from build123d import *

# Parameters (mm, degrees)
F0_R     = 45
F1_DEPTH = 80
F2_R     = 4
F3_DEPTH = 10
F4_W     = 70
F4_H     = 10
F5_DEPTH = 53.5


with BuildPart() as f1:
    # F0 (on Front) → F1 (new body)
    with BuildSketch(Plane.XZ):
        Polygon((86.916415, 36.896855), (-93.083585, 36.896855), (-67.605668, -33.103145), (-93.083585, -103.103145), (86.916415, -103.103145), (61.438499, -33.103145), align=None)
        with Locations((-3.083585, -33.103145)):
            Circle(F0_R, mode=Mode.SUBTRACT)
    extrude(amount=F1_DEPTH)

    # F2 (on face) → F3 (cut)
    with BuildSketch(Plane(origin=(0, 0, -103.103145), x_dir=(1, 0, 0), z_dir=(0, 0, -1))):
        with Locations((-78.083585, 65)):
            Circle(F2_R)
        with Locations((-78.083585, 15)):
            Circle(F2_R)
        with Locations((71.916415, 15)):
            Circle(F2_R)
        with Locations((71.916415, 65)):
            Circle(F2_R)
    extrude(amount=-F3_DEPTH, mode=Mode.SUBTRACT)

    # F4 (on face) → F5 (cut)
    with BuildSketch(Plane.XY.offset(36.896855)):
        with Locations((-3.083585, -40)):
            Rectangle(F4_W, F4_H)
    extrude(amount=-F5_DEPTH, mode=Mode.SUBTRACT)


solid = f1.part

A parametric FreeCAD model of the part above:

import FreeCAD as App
import Part
import Sketcher
from FreeCAD import Vector
Q = App.Units.Quantity


def add_polygon(sketch, points):
    """Adds a closed chain of lines whose ends are joined by coincident constraints."""
    first, n = sketch.GeometryCount, len(points)
    for a, b in zip(points, points[1:] + points[:1]):
        sketch.addGeometry(Part.LineSegment(App.Vector(*a, 0), App.Vector(*b, 0)), False)
    for i in range(n):
        sketch.addConstraint(Sketcher.Constraint("Coincident", first + i, 2, first + (i + 1) % n, 1))

doc = App.newDocument("Part")
body = doc.addObject("PartDesign::Body", "Body")

# Sketch on XZ plane
sketch1 = body.newObject("Sketcher::SketchObject", "Sketch")
sketch1.AttachmentSupport = (doc.getObject("XZ_Plane"), [""])
sketch1.MapMode = "FlatFace"
add_polygon(sketch1, [(86.916415, 36.896855), (-93.083585, 36.896855), (-67.605668, -33.103145), (-93.083585, -103.103145), (86.916415, -103.103145), (61.438499, -33.103145)])  # lines 0-5
sketch1.addGeometry(Part.Circle(Vector(-3.083585, -33.103145, 0), Vector(0, 0, 1), 45), False)  # 6
sketch1.addConstraint([
    Sketcher.Constraint("Horizontal", 0),
    Sketcher.Constraint("Horizontal", 3),
    Sketcher.Constraint("Parallel", 1, 4),
    Sketcher.Constraint("Parallel", 2, 5),
    Sketcher.Constraint("Horizontal", 6, 3, 1, 2),
    Sketcher.Constraint("Horizontal", 1, 2, 4, 2),
    Sketcher.Constraint("Vertical", 0, 2, 2, 2),
    Sketcher.Constraint("Vertical", 3, 2, 5, 2),
    Sketcher.Constraint("Diameter", 6, 90.0),
    Sketcher.Constraint("DistanceX", 0, 2, 0, 1, 180.0),
    Sketcher.Constraint("Angle", 1, Q("-70 deg")),
    Sketcher.Constraint("DistanceX", 0, 2, 6, 3, 90.0),
    Sketcher.Constraint("DistanceY", 6, 3, 0, 2, 70.0),
    Sketcher.Constraint("DistanceX", -1, 1, 4, 2, 61.438499),
    Sketcher.Constraint("DistanceY", 6, 3, -1, 1, 33.103145),
])
pad1 = body.newObject("PartDesign::Pad", "Pad")
pad1.Profile = sketch1
pad1.Length = 80

# Sketch on XY plane
sketch2 = body.newObject("Sketcher::SketchObject", "Sketch001")
sketch2.AttachmentSupport = (doc.getObject("XY_Plane"), [""])
sketch2.MapMode = "FlatFace"
sketch2.AttachmentOffset = App.Placement(Vector(0, 0, -103.103145), App.Rotation())
sketch2.addGeometry([
    Part.Circle(Vector(-78.083585, -65, 0), Vector(0, 0, 1), 4),
    Part.Circle(Vector(-78.083585, -15, 0), Vector(0, 0, 1), 4),
    Part.Circle(Vector(71.916415, -15, 0), Vector(0, 0, 1), 4),
    Part.Circle(Vector(71.916415, -65, 0), Vector(0, 0, 1), 4),
], False)
sketch2.addConstraint([
    Sketcher.Constraint("Equal", 0, 1),
    Sketcher.Constraint("Equal", 1, 2),
    Sketcher.Constraint("Equal", 2, 3),
    Sketcher.Constraint("Horizontal", 1, 3, 2, 3),
    Sketcher.Constraint("Horizontal", 0, 3, 3, 3),
    Sketcher.Constraint("Vertical", 0, 3, 1, 3),
    Sketcher.Constraint("Vertical", 2, 3, 3, 3),
    Sketcher.Constraint("Diameter", 0, 8.0),
    Sketcher.Constraint("DistanceY", 0, 3, -1, 1, 65.0),
    Sketcher.Constraint("DistanceY", 1, 3, -1, 1, 15.0),
    Sketcher.Constraint("DistanceX", 1, 3, 2, 3, 150.0),
    Sketcher.Constraint("DistanceX", 0, 3, -1, 1, 78.083585),
])
pocket1 = body.newObject("PartDesign::Pocket", "Pocket")
pocket1.Profile = sketch2
pocket1.Length = 10
pocket1.Reversed = True

# Sketch on XY plane
sketch3 = body.newObject("Sketcher::SketchObject", "Sketch002")
sketch3.AttachmentSupport = (doc.getObject("XY_Plane"), [""])
sketch3.MapMode = "FlatFace"
sketch3.AttachmentOffset = App.Placement(Vector(0, 0, 36.896855), App.Rotation())
add_polygon(sketch3, [(-38.083585, -35), (-38.083585, -45), (31.916415, -45), (31.916415, -35)])  # lines 0-3
sketch3.addConstraint([
    Sketcher.Constraint("Vertical", 0),
    Sketcher.Constraint("Horizontal", 1),
    Sketcher.Constraint("Vertical", 2),
    Sketcher.Constraint("Horizontal", 3),
    Sketcher.Constraint("DistanceX", 1, 1, 1, 2, 70.0),
    Sketcher.Constraint("DistanceY", 0, 2, 0, 1, 10.0),
    Sketcher.Constraint("DistanceY", 0, 2, -1, 1, 45.0),
    Sketcher.Constraint("DistanceX", 0, 2, -1, 1, 38.083585),
])
pocket2 = body.newObject("PartDesign::Pocket", "Pocket001")
pocket2.Profile = sketch3
pocket2.Length = 53.5

doc.recompute()
